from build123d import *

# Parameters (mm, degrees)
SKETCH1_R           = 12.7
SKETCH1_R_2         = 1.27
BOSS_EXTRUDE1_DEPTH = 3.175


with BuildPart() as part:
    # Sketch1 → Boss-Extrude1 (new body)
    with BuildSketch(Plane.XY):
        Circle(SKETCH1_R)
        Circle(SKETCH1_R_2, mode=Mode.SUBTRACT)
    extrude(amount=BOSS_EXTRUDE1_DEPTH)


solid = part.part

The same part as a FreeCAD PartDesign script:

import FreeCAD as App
import Part
import Sketcher

V = App.Vector
Q = App.Units.Quantity

doc = App.newDocument("Part")
params = doc.addObject("Spreadsheet::Sheet", "Params")
for row, (alias, value) in enumerate([
    ("sketch1_diameter", "1 in"),
    ("sketch1_diameter2", "0.1 in"),
    ("pad1_length", "0.125 in"),
], start=1):
    params.set(f"A{row}", alias)
    params.set(f"B{row}", "=" + value)
    params.setAlias(f"B{row}", alias)

body = doc.addObject("PartDesign::Body", "Body")

# Sketch on XY plane
sketch1 = body.newObject("Sketcher::SketchObject", "Sketch")
sketch1.AttachmentSupport = (doc.getObject("XY_Plane"), [""])
sketch1.MapMode = "FlatFace"
sketch1.addGeometry(Part.Circle(V(0, 0, 0), V(0, 0, 1), 12.7), False)
sketch1.addGeometry(Part.Circle(V(0, 0, 0), V(0, 0, 1), 1.3), False)
sketch1.addConstraint(Sketcher.Constraint("Coincident", 0, 3, -1, 1))
sketch1.addConstraint(Sketcher.Constraint("Coincident", 1, 3, -1, 1))
sketch1.addConstraint(Sketcher.Constraint("Diameter", 0, Q("1 in")))
sketch1.addConstraint(Sketcher.Constraint("Diameter", 1, Q("0.1 in")))
sketch1.setExpression("Constraints[2]", "Params.sketch1_diameter")
sketch1.setExpression("Constraints[3]", "Params.sketch1_diameter2")
pad1 = body.newObject("PartDesign::Pad", "Pad")
pad1.Profile = sketch1
pad1.setExpression("Length", "Params.pad1_length")

doc.recompute()
